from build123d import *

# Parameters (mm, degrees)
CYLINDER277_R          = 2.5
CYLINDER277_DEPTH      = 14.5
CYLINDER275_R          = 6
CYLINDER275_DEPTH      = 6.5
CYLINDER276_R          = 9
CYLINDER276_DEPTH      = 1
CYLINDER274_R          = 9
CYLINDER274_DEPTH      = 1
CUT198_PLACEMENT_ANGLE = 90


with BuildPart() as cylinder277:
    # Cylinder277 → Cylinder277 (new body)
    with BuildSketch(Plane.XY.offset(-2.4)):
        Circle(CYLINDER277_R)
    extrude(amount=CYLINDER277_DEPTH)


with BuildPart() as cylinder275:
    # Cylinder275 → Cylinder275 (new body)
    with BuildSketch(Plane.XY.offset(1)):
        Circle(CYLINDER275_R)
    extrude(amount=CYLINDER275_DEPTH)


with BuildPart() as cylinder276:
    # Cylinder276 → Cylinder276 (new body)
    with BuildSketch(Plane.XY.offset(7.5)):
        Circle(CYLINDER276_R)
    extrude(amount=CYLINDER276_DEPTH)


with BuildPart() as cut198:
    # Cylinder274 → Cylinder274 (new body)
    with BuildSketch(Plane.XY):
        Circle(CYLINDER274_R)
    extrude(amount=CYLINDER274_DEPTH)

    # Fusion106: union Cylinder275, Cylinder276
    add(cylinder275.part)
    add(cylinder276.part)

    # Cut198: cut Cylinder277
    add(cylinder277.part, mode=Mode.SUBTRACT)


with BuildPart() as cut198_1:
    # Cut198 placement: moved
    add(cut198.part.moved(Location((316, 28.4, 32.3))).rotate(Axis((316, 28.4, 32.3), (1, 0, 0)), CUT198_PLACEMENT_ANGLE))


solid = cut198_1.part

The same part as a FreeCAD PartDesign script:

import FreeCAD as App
import Part
import Sketcher

doc = App.newDocument("Part")
body = doc.addObject("PartDesign::Body", "Body")

sketch1 = body.newObject("Sketcher::SketchObject", "Sketch")
sketch1.AttachmentSupport = (doc.getObject("XY_Plane"), [""])
sketch1.MapMode = "FlatFace"
sketch1.AttachmentOffset = App.Placement(App.Vector(0, 0, -2.4), App.Rotation())
sketch1.addGeometry(Part.Circle(App.Vector(0, 0, 0), App.Vector(0, 0, 1), 2.5), False)
sketch1.addConstraint([
    Sketcher.Constraint("Coincident", 0, 3, -1, 1),
    Sketcher.Constraint("Diameter", 0, 5.0),
])
pad1 = body.newObject("PartDesign::Pad", "Pad")
pad1.Profile = sketch1
pad1.Length = 14.5
body2 = doc.addObject("PartDesign::Body", "Body001")

sketch2 = body2.newObject("Sketcher::SketchObject", "Sketch001")
sketch2.AttachmentSupport = (doc.getObject("XY_Plane001"), [""])
sketch2.MapMode = "FlatFace"
sketch2.AttachmentOffset = App.Placement(App.Vector(0, 0, 1), App.Rotation())
sketch2.addGeometry(Part.Circle(App.Vector(0, 0, 0), App.Vector(0, 0, 1), 6), False)
sketch2.addConstraint([
    Sketcher.Constraint("Coincident", 0, 3, -1, 1),
    Sketcher.Constraint("Diameter", 0, 12.0),
])
pad2 = body2.newObject("PartDesign::Pad", "Pad001")
pad2.Profile = sketch2
pad2.Length = 6.5
body3 = doc.addObject("PartDesign::Body", "Body002")

sketch3 = body3.newObject("Sketcher::SketchObject", "Sketch002")
sketch3.AttachmentSupport = (doc.getObject("XY_Plane002"), [""])
sketch3.MapMode = "FlatFace"
sketch3.AttachmentOffset = App.Placement(App.Vector(0, 0, 7.5), App.Rotation())
sketch3.addGeometry(Part.Circle(App.Vector(0, 0, 0), App.Vector(0, 0, 1), 9), False)
sketch3.addConstraint([
    Sketcher.Constraint("Coincident", 0, 3, -1, 1),
    Sketcher.Constraint("Diameter", 0, 18.0),
])
pad3 = body3.newObject("PartDesign::Pad", "Pad002")
pad3.Profile = sketch3
pad3.Length = 1
body4 = doc.addObject("PartDesign::Body", "Body003")

sketch4 = body4.newObject("Sketcher::SketchObject", "Sketch003")
sketch4.AttachmentSupport = (doc.getObject("XY_Plane003"), [""])
sketch4.MapMode = "FlatFace"
sketch4.addGeometry(Part.Circle(App.Vector(0, 0, 0), App.Vector(0, 0, 1), 9), False)
sketch4.addConstraint([
    Sketcher.Constraint("Coincident", 0, 3, -1, 1),
    Sketcher.Constraint("Diameter", 0, 18.0),
])
pad4 = body4.newObject("PartDesign::Pad", "Pad003")
pad4.Profile = sketch4
pad4.Length = 1
doc.recompute()

boolean = body4.newObject("PartDesign::Boolean", "Boolean")
boolean.Type = "Fuse"
boolean.addObjects([body2])
doc.recompute()

boolean2 = body4.newObject("PartDesign::Boolean", "Boolean001")
boolean2.Type = "Fuse"
boolean2.addObjects([body3])
doc.recompute()

boolean3 = body4.newObject("PartDesign::Boolean", "Boolean002")
boolean3.Type = "Cut"
boolean3.addObjects([body])
body5 = doc.addObject("PartDesign::Body", "Body004")
doc.recompute()

body4.Placement = App.Placement(App.Vector(316, 28.4, 32.3), App.Rotation(App.Vector(1, 0, 0), 90))
boolean4 = body5.newObject("PartDesign::Boolean", "Boolean003")
boolean4.Type = "Fuse"
boolean4.addObjects([body4])

doc.recompute()
